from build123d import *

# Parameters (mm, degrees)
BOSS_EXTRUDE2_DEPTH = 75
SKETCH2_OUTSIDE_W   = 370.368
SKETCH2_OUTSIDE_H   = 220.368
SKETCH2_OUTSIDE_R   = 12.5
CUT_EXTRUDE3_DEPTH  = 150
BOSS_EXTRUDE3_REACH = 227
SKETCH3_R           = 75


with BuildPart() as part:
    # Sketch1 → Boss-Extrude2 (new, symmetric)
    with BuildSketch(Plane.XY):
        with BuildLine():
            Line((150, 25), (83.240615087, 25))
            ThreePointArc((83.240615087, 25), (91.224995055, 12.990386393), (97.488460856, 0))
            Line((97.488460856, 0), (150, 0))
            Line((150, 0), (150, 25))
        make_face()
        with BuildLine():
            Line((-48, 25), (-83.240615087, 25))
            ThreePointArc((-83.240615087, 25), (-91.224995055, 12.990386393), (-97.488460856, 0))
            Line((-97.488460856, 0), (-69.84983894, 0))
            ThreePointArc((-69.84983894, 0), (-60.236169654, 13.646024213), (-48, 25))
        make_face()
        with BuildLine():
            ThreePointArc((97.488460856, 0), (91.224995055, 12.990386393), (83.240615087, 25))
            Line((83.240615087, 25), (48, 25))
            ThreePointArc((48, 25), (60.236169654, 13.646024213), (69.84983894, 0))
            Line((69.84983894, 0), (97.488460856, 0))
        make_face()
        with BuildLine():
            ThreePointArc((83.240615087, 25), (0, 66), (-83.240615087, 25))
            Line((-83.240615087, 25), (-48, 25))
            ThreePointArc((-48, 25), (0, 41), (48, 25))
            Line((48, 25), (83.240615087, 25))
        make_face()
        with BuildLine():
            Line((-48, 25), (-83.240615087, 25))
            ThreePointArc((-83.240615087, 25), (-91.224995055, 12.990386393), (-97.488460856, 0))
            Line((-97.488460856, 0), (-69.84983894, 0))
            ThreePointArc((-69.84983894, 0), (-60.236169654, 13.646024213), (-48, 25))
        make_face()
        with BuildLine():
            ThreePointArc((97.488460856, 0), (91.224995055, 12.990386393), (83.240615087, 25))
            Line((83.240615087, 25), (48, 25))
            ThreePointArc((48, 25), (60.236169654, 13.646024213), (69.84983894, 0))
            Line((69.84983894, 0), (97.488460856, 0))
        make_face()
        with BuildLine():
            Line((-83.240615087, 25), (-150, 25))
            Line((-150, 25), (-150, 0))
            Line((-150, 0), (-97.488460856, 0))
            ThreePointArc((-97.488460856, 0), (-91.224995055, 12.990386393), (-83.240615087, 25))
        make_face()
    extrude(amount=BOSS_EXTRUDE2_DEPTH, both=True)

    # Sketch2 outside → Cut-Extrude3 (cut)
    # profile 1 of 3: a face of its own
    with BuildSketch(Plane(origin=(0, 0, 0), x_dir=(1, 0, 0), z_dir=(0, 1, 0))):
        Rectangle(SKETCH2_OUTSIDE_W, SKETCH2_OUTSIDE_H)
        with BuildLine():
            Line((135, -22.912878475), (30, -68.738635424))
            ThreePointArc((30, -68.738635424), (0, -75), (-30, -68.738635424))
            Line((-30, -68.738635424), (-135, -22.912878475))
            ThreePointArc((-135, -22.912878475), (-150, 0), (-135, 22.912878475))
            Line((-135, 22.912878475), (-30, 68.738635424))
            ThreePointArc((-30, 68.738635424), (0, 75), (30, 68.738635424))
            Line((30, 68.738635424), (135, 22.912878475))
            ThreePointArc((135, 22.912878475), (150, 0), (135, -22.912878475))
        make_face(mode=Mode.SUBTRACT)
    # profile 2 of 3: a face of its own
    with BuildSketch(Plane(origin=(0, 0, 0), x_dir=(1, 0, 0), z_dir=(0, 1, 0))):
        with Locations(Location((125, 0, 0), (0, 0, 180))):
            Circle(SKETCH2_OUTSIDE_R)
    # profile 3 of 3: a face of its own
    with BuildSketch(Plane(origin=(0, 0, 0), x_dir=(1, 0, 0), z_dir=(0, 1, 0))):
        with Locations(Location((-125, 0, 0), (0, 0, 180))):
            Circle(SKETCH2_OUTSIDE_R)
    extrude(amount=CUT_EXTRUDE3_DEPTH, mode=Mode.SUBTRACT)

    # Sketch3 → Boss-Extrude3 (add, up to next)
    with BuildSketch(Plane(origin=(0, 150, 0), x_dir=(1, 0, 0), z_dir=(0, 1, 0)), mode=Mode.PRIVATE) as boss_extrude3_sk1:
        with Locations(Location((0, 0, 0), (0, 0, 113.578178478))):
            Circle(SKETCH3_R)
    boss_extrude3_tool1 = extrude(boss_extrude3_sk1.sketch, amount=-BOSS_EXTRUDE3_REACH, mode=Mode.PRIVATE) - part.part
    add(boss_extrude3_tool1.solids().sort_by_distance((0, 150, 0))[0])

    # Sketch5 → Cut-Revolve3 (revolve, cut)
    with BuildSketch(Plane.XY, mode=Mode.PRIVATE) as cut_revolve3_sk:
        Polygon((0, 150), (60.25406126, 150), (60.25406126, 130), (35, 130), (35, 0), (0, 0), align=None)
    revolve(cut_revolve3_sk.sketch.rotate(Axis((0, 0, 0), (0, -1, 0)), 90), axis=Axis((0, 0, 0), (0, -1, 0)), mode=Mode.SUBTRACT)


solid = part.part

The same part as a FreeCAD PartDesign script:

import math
import FreeCAD as App
import Part
import Sketcher

V = App.Vector
Q = App.Units.Quantity


def add_polygon(sketch, points):
    """Adds a closed chain of lines whose ends are joined by coincident constraints."""
    first, n = sketch.GeometryCount, len(points)
    for a, b in zip(points, points[1:] + points[:1]):
        sketch.addGeometry(Part.LineSegment(App.Vector(*a, 0), App.Vector(*b, 0)), False)
    for i in range(n):
        sketch.addConstraint(Sketcher.Constraint("Coincident", first + i, 2, first + (i + 1) % n, 1))

doc = App.newDocument("Part")
body = doc.addObject("PartDesign::Body", "Body")

# Sketch on XY plane
sketch1 = doc.addObject("Sketcher::SketchObject", "Sketch")
body.addObject(sketch1)
sketch1.AttachmentSupport = (doc.XY_Plane, [""])
sketch1.MapMode = "FlatFace"
sketch1.addGeometry(Part.LineSegment(V(150, 0, 0), V(150, 25, 0)), False)
sketch1.addGeometry(Part.LineSegment(V(150, 25, 0), V(83, 25, 0)), False)
sketch1.addGeometry(Part.ArcOfCircle(Part.Circle(V(0, -39, 0), V(0, 0, 1), 105), math.radians(38), math.radians(142)), False)
sketch1.addGeometry(Part.LineSegment(V(-83, 25, 0), V(-150, 25, 0)), False)
sketch1.addGeometry(Part.LineSegment(V(-150, 25, 0), V(-150, 0, 0)), False)
sketch1.addGeometry(Part.LineSegment(V(-150, 0, 0), V(-70, 0, 0)), False)
sketch1.addGeometry(Part.ArcOfCircle(Part.Circle(V(0, -39, 0), V(0, 0, 1), 80), math.radians(127), math.radians(151)), False)
sketch1.addGeometry(Part.ArcOfCircle(Part.Circle(V(0, -39, 0), V(0, 0, 1), 80), math.radians(53), math.radians(127)), False)
sketch1.addGeometry(Part.ArcOfCircle(Part.Circle(V(0, -39, 0), V(0, 0, 1), 80), math.radians(29), math.radians(53)), False)
sketch1.addGeometry(Part.LineSegment(V(70, 0, 0), V(150, 0, 0)), False)
sketch1.addConstraint(Sketcher.Constraint("Coincident", 0, 2, 1, 1))
sketch1.addConstraint(Sketcher.Constraint("Coincident", 1, 2, 2, 1))
sketch1.addConstraint(Sketcher.Constraint("Coincident", 2, 2, 3, 1))
sketch1.addConstraint(Sketcher.Constraint("Coincident", 3, 2, 4, 1))
sketch1.addConstraint(Sketcher.Constraint("Coincident", 4, 2, 5, 1))
sketch1.addConstraint(Sketcher.Constraint("Coincident", 5, 2, 6, 2))
sketch1.addConstraint(Sketcher.Constraint("Tangent", 6, 1, 7, 2))
sketch1.addConstraint(Sketcher.Constraint("Tangent", 7, 1, 8, 2))
sketch1.addConstraint(Sketcher.Constraint("Coincident", 8, 1, 9, 1))
sketch1.addConstraint(Sketcher.Constraint("Coincident", 9, 2, 0, 1))
sketch1.addConstraint(Sketcher.Constraint("Vertical", 0))
sketch1.addConstraint(Sketcher.Constraint("Horizontal", 1))
sketch1.addConstraint(Sketcher.Constraint("Horizontal", 3))
sketch1.addConstraint(Sketcher.Constraint("Vertical", 4))
sketch1.addConstraint(Sketcher.Constraint("Horizontal", 5))
sketch1.addConstraint(Sketcher.Constraint("Horizontal", 9))
sketch1.addConstraint(Sketcher.Constraint("Coincident", 6, 3, 2, 3))
sketch1.addConstraint(Sketcher.Constraint("Coincident", 8, 3, 2, 3))
sketch1.addConstraint(Sketcher.Constraint("Symmetric", 5, 2, 8, 1, -1, 1))
sketch1.addConstraint(Sketcher.Constraint("Symmetric", 1, 2, 2, 2, -2))
sketch1.addConstraint(Sketcher.Constraint("Horizontal", 3, 2, 6, 1))
sketch1.addConstraint(Sketcher.Constraint("Horizontal", 6, 1, 7, 1))
sketch1.addConstraint(Sketcher.Constraint("Equal", 1, 3))
sketch1.addConstraint(Sketcher.Constraint("Radius", 2, Q("105 mm")))
sketch1.addConstraint(Sketcher.Constraint("Radius", 6, Q("80 mm")))
sketch1.addConstraint(Sketcher.Constraint("DistanceY", 0, 1, 0, 2, Q("25 mm")))
sketch1.addConstraint(Sketcher.Constraint("DistanceY", 2, 3, -1, 1, Q("39 mm")))
sketch1.addConstraint(Sketcher.Constraint("DistanceX", -1, 1, 0, 2, Q("150 mm")))
pad1 = doc.addObject("PartDesign::Pad", "Pad")
body.addObject(pad1)
pad1.Profile = sketch1
pad1.Length = 150
pad1.Midplane = True

# Sketch on XZ plane
sketch2 = doc.addObject("Sketcher::SketchObject", "Sketch001")
body.addObject(sketch2)
sketch2.AttachmentSupport = (doc.XZ_Plane, [""])
sketch2.MapMode = "FlatFace"
add_polygon(sketch2, [(-185, -110), (-185, 110), (185, 110), (185, -110)])  # lines 0-3
sketch2.addGeometry(Part.ArcOfCircle(Part.Circle(V(125, 0, 0), V(0, 0, 1), 25), math.radians(-66), math.radians(66)), False)  # 4
sketch2.addGeometry(Part.LineSegment(V(135, 23, 0), V(30, 69, 0)), False)  # 5
sketch2.addGeometry(Part.ArcOfCircle(Part.Circle(V(0, 0, 0), V(0, 0, 1), 75), math.radians(66), math.radians(114)), False)  # 6
sketch2.addGeometry(Part.LineSegment(V(-30, 69, 0), V(-135, 23, 0)), False)  # 7
sketch2.addGeometry(Part.ArcOfCircle(Part.Circle(V(-125, 0, 0), V(0, 0, 1), 25), math.radians(114), math.radians(246)), False)  # 8
sketch2.addGeometry(Part.LineSegment(V(-135, -23, 0), V(-30, -69, 0)), False)  # 9
sketch2.addGeometry(Part.ArcOfCircle(Part.Circle(V(0, 0, 0), V(0, 0, 1), 75), math.radians(-114), math.radians(-66)), False)  # 10
sketch2.addGeometry(Part.LineSegment(V(30, -69, 0), V(135, -23, 0)), False)  # 11
sketch2.addGeometry(Part.Circle(V(125, 0, 0), V(0, 0, 1), 12), False)  # 12
sketch2.addGeometry(Part.Circle(V(-125, 0, 0), V(0, 0, 1), 12), False)  # 13
sketch2.addConstraint(Sketcher.Constraint("Tangent", 4, 2, 5, 1))
sketch2.addConstraint(Sketcher.Constraint("Tangent", 5, 2, 6, 1))
sketch2.addConstraint(Sketcher.Constraint("Tangent", 6, 2, 7, 1))
sketch2.addConstraint(Sketcher.Constraint("Tangent", 7, 2, 8, 1))
sketch2.addConstraint(Sketcher.Constraint("Tangent", 8, 2, 9, 1))
sketch2.addConstraint(Sketcher.Constraint("Tangent", 9, 2, 10, 1))
sketch2.addConstraint(Sketcher.Constraint("Tangent", 10, 2, 11, 1))
sketch2.addConstraint(Sketcher.Constraint("Tangent", 11, 2, 4, 1))
sketch2.addConstraint(Sketcher.Constraint("Vertical", 0))
sketch2.addConstraint(Sketcher.Constraint("Horizontal", 1))
sketch2.addConstraint(Sketcher.Constraint("Vertical", 2))
sketch2.addConstraint(Sketcher.Constraint("Horizontal", 3))
sketch2.addConstraint(Sketcher.Constraint("Coincident", 6, 3, -1, 1))
sketch2.addConstraint(Sketcher.Constraint("Coincident", 10, 3, -1, 1))
sketch2.addConstraint(Sketcher.Constraint("Coincident", 12, 3, 4, 3))
sketch2.addConstraint(Sketcher.Constraint("Coincident", 13, 3, 8, 3))
sketch2.addConstraint(Sketcher.Constraint("Equal", 4, 8))
sketch2.addConstraint(Sketcher.Constraint("Equal", 6, 10))
sketch2.addConstraint(Sketcher.Constraint("Equal", 12, 13))
sketch2.addConstraint(Sketcher.Constraint("Symmetric", 4, 3, 8, 3, -1, 1))
sketch2.addConstraint(Sketcher.Constraint("Symmetric", 0, 2, 2, 2, -1, 1))
sketch2.addConstraint(Sketcher.Constraint("PointOnObject", 4, 3, -1))
sketch2.addConstraint(Sketcher.Constraint("Diameter", 12, Q("25 mm")))
sketch2.addConstraint(Sketcher.Constraint("Radius", 4, Q("25 mm")))
sketch2.addConstraint(Sketcher.Constraint("Radius", 6, Q("75 mm")))
sketch2.addConstraint(Sketcher.Constraint("DistanceX", -1, 1, 4, 3, Q("125 mm")))
sketch2.addConstraint(Sketcher.Constraint("DistanceX", 1, 1, 1, 2, Q("370.368 mm")))
sketch2.addConstraint(Sketcher.Constraint("DistanceY", 0, 1, 0, 2, Q("220.368 mm")))
pocket1 = doc.addObject("PartDesign::Pocket", "Pocket")
body.addObject(pocket1)
pocket1.Profile = sketch2
pocket1.Length = 150

# Sketch on XZ plane
sketch3 = doc.addObject("Sketcher::SketchObject", "Sketch002")
body.addObject(sketch3)
sketch3.AttachmentSupport = (doc.XZ_Plane, [""])
sketch3.MapMode = "FlatFace"
sketch3.AttachmentOffset = App.Placement(V(0, 0, -150), App.Rotation())
sketch3.addGeometry(Part.Circle(V(0, 0, 0), V(0, 0, 1), 75), False)
sketch3.addConstraint(Sketcher.Constraint("Coincident", 0, 3, -1, 1))
sketch3.addConstraint(Sketcher.Constraint("Diameter", 0, Q("150 mm")))
pad2 = doc.addObject("PartDesign::Pad", "Pad001")
body.addObject(pad2)
pad2.Profile = sketch3
pad2.Type = "UpToFirst"

# Sketch on XY plane
sketch4 = doc.addObject("Sketcher::SketchObject", "Sketch003")
body.addObject(sketch4)
sketch4.AttachmentSupport = (doc.XY_Plane, [""])
sketch4.MapMode = "FlatFace"
add_polygon(sketch4, [(60, 150), (0, 150), (0, 0), (35, 0), (35, 130), (60, 130)])  # lines 0-5
sketch4.addConstraint(Sketcher.Constraint("Horizontal", 0))
sketch4.addConstraint(Sketcher.Constraint("Vertical", 1))
sketch4.addConstraint(Sketcher.Constraint("Horizontal", 2))
sketch4.addConstraint(Sketcher.Constraint("Vertical", 3))
sketch4.addConstraint(Sketcher.Constraint("Horizontal", 4))
sketch4.addConstraint(Sketcher.Constraint("Vertical", 5))
sketch4.addConstraint(Sketcher.Constraint("Coincident", 1, 2, -1, 1))
sketch4.addConstraint(Sketcher.Constraint("DistanceX", 2, 1, 2, 2, Q("35 mm")))
sketch4.addConstraint(Sketcher.Constraint("DistanceY", 1, 2, 1, 1, Q("150 mm")))
sketch4.addConstraint(Sketcher.Constraint("DistanceY", 3, 1, 3, 2, Q("130 mm")))
sketch4.addConstraint(Sketcher.Constraint("DistanceX", 0, 2, 0, 1, Q("60.254061 mm")))
groove = doc.addObject("PartDesign::Groove", "Groove")
body.addObject(groove)
groove.Profile = sketch4
groove.ReferenceAxis = (sketch4, ["V_Axis"])
groove.Angle = 360

doc.recompute()
